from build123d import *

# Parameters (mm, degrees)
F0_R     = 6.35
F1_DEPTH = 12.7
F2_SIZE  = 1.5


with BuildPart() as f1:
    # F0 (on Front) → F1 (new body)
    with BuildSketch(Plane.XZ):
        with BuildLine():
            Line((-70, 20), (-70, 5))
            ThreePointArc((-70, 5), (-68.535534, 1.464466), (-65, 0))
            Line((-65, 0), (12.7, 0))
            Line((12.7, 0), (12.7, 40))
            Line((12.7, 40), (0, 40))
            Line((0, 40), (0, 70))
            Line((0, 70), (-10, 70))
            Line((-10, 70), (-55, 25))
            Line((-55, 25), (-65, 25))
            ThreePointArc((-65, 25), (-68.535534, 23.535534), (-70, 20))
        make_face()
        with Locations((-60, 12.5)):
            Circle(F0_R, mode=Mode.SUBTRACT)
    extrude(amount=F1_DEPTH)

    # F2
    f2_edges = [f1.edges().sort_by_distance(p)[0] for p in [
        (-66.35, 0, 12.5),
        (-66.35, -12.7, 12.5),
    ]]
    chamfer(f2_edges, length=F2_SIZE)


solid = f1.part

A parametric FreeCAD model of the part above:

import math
import FreeCAD as App
import Part
import Sketcher
from FreeCAD import Vector
Q = App.Units.Quantity


def edges_at(feature, points):
    """Names of the edges that pass closest to the given points."""
    edges = feature.Shape.Edges
    near = lambda p: min(range(len(edges)), key=lambda i: edges[i].distToShape(Part.Vertex(*p))[0])
    return sorted({f"Edge{near(p) + 1}" for p in points})

doc = App.newDocument("Part")
body = doc.addObject("PartDesign::Body", "Body")

# Sketch on XZ plane
sketch1 = body.newObject("Sketcher::SketchObject", "Sketch")
sketch1.AttachmentSupport = (doc.getObject("XZ_Plane"), [""])
sketch1.MapMode = "FlatFace"
sketch1.addGeometry([
    Part.LineSegment(Vector(-70, 20, 0), Vector(-70, 5, 0)),  # 0
    Part.ArcOfCircle(Part.Circle(Vector(-65, 5, 0), Vector(0, 0, 1), 5), math.radians(180), math.radians(270)),  # 1
    Part.LineSegment(Vector(-65, 0, 0), Vector(12.7, 0, 0)),  # 2
    Part.LineSegment(Vector(12.7, 0, 0), Vector(12.7, 40, 0)),  # 3
    Part.LineSegment(Vector(12.7, 40, 0), Vector(0, 40, 0)),  # 4
    Part.LineSegment(Vector(0, 40, 0), Vector(0, 70, 0)),  # 5
    Part.LineSegment(Vector(0, 70, 0), Vector(-10, 70, 0)),  # 6
    Part.LineSegment(Vector(-10, 70, 0), Vector(-55, 25, 0)),  # 7
    Part.LineSegment(Vector(-55, 25, 0), Vector(-65, 25, 0)),  # 8
    Part.ArcOfCircle(Part.Circle(Vector(-65, 20, 0), Vector(0, 0, 1), 5), math.radians(90), math.radians(180)),  # 9
    Part.Circle(Vector(-60, 12.5, 0), Vector(0, 0, 1), 6.3),  # 10
], False)
sketch1.addConstraint([
    Sketcher.Constraint("Tangent", 0, 2, 1, 1),
    Sketcher.Constraint("Tangent", 1, 2, 2, 1),
    Sketcher.Constraint("Coincident", 2, 2, 3, 1),
    Sketcher.Constraint("Coincident", 3, 2, 4, 1),
    Sketcher.Constraint("Coincident", 4, 2, 5, 1),
    Sketcher.Constraint("Coincident", 5, 2, 6, 1),
    Sketcher.Constraint("Coincident", 6, 2, 7, 1),
    Sketcher.Constraint("Coincident", 7, 2, 8, 1),
    Sketcher.Constraint("Tangent", 8, 2, 9, 1),
    Sketcher.Constraint("Tangent", 9, 2, 0, 1),
    Sketcher.Constraint("Vertical", 0),
    Sketcher.Constraint("Horizontal", 2),
    Sketcher.Constraint("Vertical", 3),
    Sketcher.Constraint("Horizontal", 4),
    Sketcher.Constraint("Vertical", 5),
    Sketcher.Constraint("Horizontal", 6),
    Sketcher.Constraint("Horizontal", 8),
    Sketcher.Constraint("Equal", 1, 9),
    Sketcher.Constraint("PointOnObject", 1, 2, -1),
    Sketcher.Constraint("PointOnObject", 4, 2, -2),
    Sketcher.Constraint("Equal", 6, 8),
    Sketcher.Constraint("Radius", 1, 5.0),
    Sketcher.Constraint("Diameter", 10, 12.7),
    Sketcher.Constraint("DistanceX", 6, 2, 6, 1, 10.0),
    Sketcher.Constraint("DistanceY", 0, 2, 0, 1, 15.0),
    Sketcher.Constraint("DistanceY", 3, 1, 3, 2, 40.0),
    Sketcher.Constraint("DistanceY", 5, 1, 5, 2, 30.0),
    Sketcher.Constraint("Angle", 7, Q("-135 deg")),
    Sketcher.Constraint("DistanceX", 2, 1, 2, 2, 77.7),
    Sketcher.Constraint("DistanceX", 10, 3, -1, 1, 60.0),
    Sketcher.Constraint("DistanceY", -1, 1, 10, 3, 12.5),
])
pad1 = body.newObject("PartDesign::Pad", "Pad")
pad1.Profile = sketch1
pad1.Length = 12.7
doc.recompute()

chamfer = body.newObject("PartDesign::Chamfer", "Chamfer")
chamfer.Base = (pad1, edges_at(pad1, [(-66.35, 0, 12.5), (-66.35, -12.7, 12.5)]))
chamfer.Size = 1.5

doc.recompute()
